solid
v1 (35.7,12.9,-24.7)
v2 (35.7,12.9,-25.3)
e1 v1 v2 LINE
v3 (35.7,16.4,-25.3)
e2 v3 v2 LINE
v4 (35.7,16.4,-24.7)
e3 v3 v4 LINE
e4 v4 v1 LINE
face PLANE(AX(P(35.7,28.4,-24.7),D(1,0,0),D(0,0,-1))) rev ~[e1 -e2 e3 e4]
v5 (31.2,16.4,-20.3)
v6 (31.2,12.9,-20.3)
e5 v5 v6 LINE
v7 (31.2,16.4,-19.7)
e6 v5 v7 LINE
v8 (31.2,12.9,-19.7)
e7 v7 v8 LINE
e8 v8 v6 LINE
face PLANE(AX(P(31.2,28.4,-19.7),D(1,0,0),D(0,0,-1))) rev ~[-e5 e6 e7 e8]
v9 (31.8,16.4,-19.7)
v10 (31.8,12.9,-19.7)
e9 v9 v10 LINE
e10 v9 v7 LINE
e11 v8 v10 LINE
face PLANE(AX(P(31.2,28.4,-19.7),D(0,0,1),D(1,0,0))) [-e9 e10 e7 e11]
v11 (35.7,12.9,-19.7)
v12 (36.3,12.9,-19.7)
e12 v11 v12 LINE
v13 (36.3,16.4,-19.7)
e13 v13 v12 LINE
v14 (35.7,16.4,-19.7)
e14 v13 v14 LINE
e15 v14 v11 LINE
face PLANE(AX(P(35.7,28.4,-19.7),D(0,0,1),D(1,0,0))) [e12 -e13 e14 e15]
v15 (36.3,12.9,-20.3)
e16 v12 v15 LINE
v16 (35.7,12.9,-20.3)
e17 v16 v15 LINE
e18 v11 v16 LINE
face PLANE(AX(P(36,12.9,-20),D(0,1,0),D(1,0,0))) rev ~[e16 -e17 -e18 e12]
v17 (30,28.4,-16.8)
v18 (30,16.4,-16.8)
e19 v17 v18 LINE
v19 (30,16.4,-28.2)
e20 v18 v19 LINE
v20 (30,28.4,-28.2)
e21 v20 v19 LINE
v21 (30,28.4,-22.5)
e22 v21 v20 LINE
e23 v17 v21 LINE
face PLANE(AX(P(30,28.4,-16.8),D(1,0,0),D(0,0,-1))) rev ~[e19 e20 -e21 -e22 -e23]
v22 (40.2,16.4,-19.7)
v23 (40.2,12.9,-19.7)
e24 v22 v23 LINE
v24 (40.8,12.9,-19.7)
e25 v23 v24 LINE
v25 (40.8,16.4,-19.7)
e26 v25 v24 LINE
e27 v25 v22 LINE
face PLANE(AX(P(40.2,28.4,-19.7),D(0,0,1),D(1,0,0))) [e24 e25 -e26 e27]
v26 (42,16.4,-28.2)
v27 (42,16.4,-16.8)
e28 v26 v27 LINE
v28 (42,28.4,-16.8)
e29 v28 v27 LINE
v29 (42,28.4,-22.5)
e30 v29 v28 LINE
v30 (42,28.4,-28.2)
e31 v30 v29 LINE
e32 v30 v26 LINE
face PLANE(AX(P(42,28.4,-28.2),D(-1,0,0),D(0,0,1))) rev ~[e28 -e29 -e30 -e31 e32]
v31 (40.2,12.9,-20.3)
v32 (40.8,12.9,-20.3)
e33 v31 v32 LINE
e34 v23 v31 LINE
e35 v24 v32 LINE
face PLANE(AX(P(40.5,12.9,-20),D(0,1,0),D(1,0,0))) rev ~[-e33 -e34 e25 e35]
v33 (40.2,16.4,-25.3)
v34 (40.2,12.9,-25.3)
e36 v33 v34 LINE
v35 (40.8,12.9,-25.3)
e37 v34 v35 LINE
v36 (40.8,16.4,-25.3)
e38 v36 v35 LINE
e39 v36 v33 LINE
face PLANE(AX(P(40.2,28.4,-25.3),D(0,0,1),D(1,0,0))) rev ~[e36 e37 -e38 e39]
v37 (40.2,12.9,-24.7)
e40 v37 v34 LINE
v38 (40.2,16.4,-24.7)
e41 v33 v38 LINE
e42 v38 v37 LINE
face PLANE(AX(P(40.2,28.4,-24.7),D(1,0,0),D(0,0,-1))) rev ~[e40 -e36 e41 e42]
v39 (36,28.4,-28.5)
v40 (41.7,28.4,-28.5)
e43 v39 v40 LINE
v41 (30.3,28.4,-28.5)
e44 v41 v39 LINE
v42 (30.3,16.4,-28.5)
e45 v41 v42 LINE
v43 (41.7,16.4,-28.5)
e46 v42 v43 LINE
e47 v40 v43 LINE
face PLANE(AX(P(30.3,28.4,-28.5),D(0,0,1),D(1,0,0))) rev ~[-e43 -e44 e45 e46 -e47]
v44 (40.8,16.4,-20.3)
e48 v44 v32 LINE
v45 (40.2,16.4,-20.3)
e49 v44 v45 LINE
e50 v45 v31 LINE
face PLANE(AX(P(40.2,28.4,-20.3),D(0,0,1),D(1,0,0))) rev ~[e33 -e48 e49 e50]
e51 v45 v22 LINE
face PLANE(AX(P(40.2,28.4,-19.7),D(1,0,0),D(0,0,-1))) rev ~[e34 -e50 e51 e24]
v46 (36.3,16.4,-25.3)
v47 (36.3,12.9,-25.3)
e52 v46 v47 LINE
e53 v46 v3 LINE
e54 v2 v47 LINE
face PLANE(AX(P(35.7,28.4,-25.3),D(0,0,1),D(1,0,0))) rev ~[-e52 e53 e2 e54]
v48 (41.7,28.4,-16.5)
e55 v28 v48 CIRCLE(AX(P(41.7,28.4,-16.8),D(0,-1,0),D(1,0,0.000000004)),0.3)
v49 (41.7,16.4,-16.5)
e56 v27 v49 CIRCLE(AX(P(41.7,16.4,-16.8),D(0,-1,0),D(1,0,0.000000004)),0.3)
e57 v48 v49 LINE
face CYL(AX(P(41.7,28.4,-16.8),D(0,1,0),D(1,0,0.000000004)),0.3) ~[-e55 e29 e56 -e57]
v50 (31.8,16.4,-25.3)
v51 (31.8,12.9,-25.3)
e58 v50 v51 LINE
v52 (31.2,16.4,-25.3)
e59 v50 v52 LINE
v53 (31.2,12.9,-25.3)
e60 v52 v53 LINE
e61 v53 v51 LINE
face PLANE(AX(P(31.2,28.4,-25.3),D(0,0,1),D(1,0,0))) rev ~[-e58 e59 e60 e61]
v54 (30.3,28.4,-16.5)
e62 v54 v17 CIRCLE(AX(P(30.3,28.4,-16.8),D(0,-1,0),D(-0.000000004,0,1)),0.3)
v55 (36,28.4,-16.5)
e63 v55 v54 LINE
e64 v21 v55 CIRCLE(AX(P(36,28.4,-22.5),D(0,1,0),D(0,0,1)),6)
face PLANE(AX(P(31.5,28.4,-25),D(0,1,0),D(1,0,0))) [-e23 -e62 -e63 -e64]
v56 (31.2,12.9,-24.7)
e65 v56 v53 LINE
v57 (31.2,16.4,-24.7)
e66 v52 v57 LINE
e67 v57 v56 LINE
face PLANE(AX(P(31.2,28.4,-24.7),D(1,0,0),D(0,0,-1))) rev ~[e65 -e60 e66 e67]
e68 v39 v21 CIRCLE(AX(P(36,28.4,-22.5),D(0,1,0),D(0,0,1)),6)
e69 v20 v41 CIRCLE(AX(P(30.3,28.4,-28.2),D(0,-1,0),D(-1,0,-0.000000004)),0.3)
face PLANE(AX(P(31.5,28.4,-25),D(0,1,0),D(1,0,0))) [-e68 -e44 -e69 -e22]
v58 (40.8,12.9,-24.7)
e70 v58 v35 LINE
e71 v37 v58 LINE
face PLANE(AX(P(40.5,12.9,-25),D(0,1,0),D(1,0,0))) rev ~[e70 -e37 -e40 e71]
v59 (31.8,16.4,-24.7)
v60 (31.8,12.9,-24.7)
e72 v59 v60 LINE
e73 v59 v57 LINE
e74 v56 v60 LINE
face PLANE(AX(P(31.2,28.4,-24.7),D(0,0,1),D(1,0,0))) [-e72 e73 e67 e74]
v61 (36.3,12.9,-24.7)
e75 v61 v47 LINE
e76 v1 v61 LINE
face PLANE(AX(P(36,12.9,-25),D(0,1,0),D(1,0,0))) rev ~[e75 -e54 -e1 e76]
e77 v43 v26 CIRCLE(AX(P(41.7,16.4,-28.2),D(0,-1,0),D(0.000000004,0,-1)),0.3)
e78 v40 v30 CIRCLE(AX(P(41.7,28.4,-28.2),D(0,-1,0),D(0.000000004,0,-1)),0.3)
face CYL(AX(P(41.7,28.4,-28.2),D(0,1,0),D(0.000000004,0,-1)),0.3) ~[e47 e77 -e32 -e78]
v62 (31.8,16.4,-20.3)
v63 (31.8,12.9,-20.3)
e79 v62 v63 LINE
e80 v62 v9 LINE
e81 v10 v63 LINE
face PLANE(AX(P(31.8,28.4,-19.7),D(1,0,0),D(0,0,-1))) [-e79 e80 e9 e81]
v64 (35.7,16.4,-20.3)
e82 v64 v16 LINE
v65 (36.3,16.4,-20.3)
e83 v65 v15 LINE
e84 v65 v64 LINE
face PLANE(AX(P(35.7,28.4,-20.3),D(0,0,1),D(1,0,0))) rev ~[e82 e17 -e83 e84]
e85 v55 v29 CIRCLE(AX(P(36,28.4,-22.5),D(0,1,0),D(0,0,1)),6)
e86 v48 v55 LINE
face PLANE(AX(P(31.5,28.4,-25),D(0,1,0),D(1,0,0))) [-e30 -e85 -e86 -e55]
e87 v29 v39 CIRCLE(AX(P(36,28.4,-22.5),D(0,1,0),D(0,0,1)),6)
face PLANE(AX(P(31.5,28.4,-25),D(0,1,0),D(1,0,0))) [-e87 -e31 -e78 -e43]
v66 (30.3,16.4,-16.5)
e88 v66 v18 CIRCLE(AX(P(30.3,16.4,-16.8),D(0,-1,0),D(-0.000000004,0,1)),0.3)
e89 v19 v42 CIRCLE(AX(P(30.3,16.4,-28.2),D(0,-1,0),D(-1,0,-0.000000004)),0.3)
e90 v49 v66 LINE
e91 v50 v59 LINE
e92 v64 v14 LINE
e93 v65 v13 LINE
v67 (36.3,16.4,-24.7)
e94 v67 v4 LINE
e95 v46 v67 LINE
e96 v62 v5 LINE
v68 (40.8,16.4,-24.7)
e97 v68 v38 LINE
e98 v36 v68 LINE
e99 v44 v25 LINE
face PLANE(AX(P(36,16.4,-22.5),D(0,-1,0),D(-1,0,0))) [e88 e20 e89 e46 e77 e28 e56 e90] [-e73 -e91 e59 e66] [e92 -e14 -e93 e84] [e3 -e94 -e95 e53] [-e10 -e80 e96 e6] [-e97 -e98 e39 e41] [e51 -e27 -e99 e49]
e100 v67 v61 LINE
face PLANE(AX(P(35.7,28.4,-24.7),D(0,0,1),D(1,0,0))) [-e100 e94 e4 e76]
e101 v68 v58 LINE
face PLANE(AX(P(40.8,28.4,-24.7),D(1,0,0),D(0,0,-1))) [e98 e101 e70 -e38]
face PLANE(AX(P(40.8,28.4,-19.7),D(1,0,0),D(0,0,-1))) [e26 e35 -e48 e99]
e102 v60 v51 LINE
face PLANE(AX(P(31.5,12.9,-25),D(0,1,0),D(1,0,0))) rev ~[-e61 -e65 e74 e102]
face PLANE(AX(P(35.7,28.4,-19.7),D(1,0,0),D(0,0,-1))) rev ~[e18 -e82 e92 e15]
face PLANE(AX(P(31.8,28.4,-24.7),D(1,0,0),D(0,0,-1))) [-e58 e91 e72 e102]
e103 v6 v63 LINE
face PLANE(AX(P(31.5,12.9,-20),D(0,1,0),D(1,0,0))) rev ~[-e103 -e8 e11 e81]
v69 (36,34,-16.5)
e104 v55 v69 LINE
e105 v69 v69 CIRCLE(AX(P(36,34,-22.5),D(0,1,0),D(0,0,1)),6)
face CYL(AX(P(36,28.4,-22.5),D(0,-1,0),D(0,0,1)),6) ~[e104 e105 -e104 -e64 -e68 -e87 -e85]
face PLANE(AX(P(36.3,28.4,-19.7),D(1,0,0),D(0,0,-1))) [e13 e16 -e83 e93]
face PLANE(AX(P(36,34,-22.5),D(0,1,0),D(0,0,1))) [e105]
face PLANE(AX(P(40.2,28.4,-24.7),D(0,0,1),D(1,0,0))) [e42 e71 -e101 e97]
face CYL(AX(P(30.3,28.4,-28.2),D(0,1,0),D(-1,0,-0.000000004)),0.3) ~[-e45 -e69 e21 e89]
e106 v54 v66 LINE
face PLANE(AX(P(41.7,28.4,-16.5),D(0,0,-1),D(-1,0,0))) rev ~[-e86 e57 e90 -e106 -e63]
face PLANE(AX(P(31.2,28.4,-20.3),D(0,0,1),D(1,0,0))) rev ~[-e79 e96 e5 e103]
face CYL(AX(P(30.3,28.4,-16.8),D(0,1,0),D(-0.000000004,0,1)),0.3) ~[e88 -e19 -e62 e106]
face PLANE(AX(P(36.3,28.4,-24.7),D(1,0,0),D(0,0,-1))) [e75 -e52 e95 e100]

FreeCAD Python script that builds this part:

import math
import FreeCAD as App
import Part
import Sketcher
Q = App.Units.Quantity

doc = App.newDocument("Part")
params = doc.addObject("Spreadsheet::Sheet", "Params")
for row, (alias, value) in enumerate([
    ("sketch1_radius", "0.3 mm"),
    ("sketch1_width", "11.4 mm"),
    ("pad1_length", "12 mm"),
    ("sketch2_width", "0.6 mm"),
    ("pad2_length", "15.5 mm"),
    ("sketch3_diameter", "12 mm"),
    ("pad3_length", "5.6 mm"),
], start=1):
    params.set(f"A{row}", alias)
    params.set(f"B{row}", "=" + value)
    params.setAlias(f"B{row}", alias)

body = doc.addObject("PartDesign::Body", "Body")

# Sketch on XZ plane
sketch1 = body.newObject("Sketcher::SketchObject", "Sketch")
sketch1.AttachmentSupport = (doc.getObject("XZ_Plane"), [""])
sketch1.MapMode = "FlatFace"
sketch1.AttachmentOffset = App.Placement(App.Vector(0, 0, -28.4), App.Rotation())
sketch1.addGeometry([
    Part.LineSegment(App.Vector(41.7, -28.5, 0), App.Vector(30.3, -28.5, 0)),  # 0
    Part.ArcOfCircle(Part.Circle(App.Vector(30.3, -28.2, 0), App.Vector(0, 0, 1), 0.3), math.radians(-180), math.radians(-90)),  # 1
    Part.LineSegment(App.Vector(30, -28.2, 0), App.Vector(30, -16.8, 0)),  # 2
    Part.ArcOfCircle(Part.Circle(App.Vector(30.3, -16.8, 0), App.Vector(0, 0, 1), 0.3), math.radians(90), math.radians(180)),  # 3
    Part.LineSegment(App.Vector(30.3, -16.5, 0), App.Vector(41.7, -16.5, 0)),  # 4
    Part.ArcOfCircle(Part.Circle(App.Vector(41.7, -16.8, 0), App.Vector(0, 0, 1), 0.3), math.radians(0), math.radians(90)),  # 5
    Part.LineSegment(App.Vector(42, -16.8, 0), App.Vector(42, -28.2, 0)),  # 6
    Part.ArcOfCircle(Part.Circle(App.Vector(41.7, -28.2, 0), App.Vector(0, 0, 1), 0.3), math.radians(-90), math.radians(0)),  # 7
], False)
sketch1.addConstraint([
    Sketcher.Constraint("Tangent", 0, 2, 1, 2),
    Sketcher.Constraint("Tangent", 1, 1, 2, 1),
    Sketcher.Constraint("Tangent", 2, 2, 3, 2),
    Sketcher.Constraint("Tangent", 3, 1, 4, 1),
    Sketcher.Constraint("Tangent", 4, 2, 5, 2),
    Sketcher.Constraint("Tangent", 5, 1, 6, 1),
    Sketcher.Constraint("Tangent", 6, 2, 7, 2),
    Sketcher.Constraint("Tangent", 7, 1, 0, 1),
    Sketcher.Constraint("Horizontal", 0),
    Sketcher.Constraint("Vertical", 2),
    Sketcher.Constraint("Horizontal", 4),
    Sketcher.Constraint("Vertical", 6),
    Sketcher.Constraint("Equal", 1, 3),
    Sketcher.Constraint("Equal", 3, 5),
    Sketcher.Constraint("Equal", 5, 7),
    Sketcher.Constraint("Equal", 4, 2),
    Sketcher.Constraint("Radius", 1, Q("0.3 mm")),
    Sketcher.Constraint("DistanceX", 0, 2, 0, 1, Q("11.4 mm")),
    Sketcher.Constraint("DistanceX", -1, 1, 1, 1, Q("30 mm")),
    Sketcher.Constraint("DistanceY", 1, 3, -1, 1, Q("28.2 mm")),
])
sketch1.setExpression("Constraints[16]", "Params.sketch1_radius")
sketch1.setExpression("Constraints[17]", "Params.sketch1_width")
pad1 = body.newObject("PartDesign::Pad", "Pad")
pad1.Profile = sketch1
pad1.setExpression("Length", "Params.pad1_length")

# Sketch on XZ plane
sketch2 = body.newObject("Sketcher::SketchObject", "Sketch001")
sketch2.AttachmentSupport = (doc.getObject("XZ_Plane"), [""])
sketch2.MapMode = "FlatFace"
sketch2.AttachmentOffset = App.Placement(App.Vector(0, 0, -28.4), App.Rotation())
sketch2.addGeometry([
    Part.LineSegment(App.Vector(31.2, -25.3, 0), App.Vector(31.2, -24.7, 0)),  # 0
    Part.LineSegment(App.Vector(31.2, -24.7, 0), App.Vector(31.8, -24.7, 0)),  # 1
    Part.LineSegment(App.Vector(31.8, -24.7, 0), App.Vector(31.8, -25.3, 0)),  # 2
    Part.LineSegment(App.Vector(31.8, -25.3, 0), App.Vector(31.2, -25.3, 0)),  # 3
    Part.LineSegment(App.Vector(31.2, -20.3, 0), App.Vector(31.2, -19.7, 0)),  # 4
    Part.LineSegment(App.Vector(31.2, -19.7, 0), App.Vector(31.8, -19.7, 0)),  # 5
    Part.LineSegment(App.Vector(31.8, -19.7, 0), App.Vector(31.8, -20.3, 0)),  # 6
    Part.LineSegment(App.Vector(31.8, -20.3, 0), App.Vector(31.2, -20.3, 0)),  # 7
    Part.LineSegment(App.Vector(35.7, -25.3, 0), App.Vector(35.7, -24.7, 0)),  # 8
    Part.LineSegment(App.Vector(35.7, -24.7, 0), App.Vector(36.3, -24.7, 0)),  # 9
    Part.LineSegment(App.Vector(36.3, -24.7, 0), App.Vector(36.3, -25.3, 0)),  # 10
    Part.LineSegment(App.Vector(36.3, -25.3, 0), App.Vector(35.7, -25.3, 0)),  # 11
    Part.LineSegment(App.Vector(35.7, -20.3, 0), App.Vector(35.7, -19.7, 0)),  # 12
    Part.LineSegment(App.Vector(35.7, -19.7, 0), App.Vector(36.3, -19.7, 0)),  # 13
    Part.LineSegment(App.Vector(36.3, -19.7, 0), App.Vector(36.3, -20.3, 0)),  # 14
    Part.LineSegment(App.Vector(36.3, -20.3, 0), App.Vector(35.7, -20.3, 0)),  # 15
    Part.LineSegment(App.Vector(40.2, -25.3, 0), App.Vector(40.2, -24.7, 0)),  # 16
    Part.LineSegment(App.Vector(40.2, -24.7, 0), App.Vector(40.8, -24.7, 0)),  # 17
    Part.LineSegment(App.Vector(40.8, -24.7, 0), App.Vector(40.8, -25.3, 0)),  # 18
    Part.LineSegment(App.Vector(40.8, -25.3, 0), App.Vector(40.2, -25.3, 0)),  # 19
    Part.LineSegment(App.Vector(40.2, -20.3, 0), App.Vector(40.2, -19.7, 0)),  # 20
    Part.LineSegment(App.Vector(40.2, -19.7, 0), App.Vector(40.8, -19.7, 0)),  # 21
    Part.LineSegment(App.Vector(40.8, -19.7, 0), App.Vector(40.8, -20.3, 0)),  # 22
    Part.LineSegment(App.Vector(40.8, -20.3, 0), App.Vector(40.2, -20.3, 0)),  # 23
], False)
sketch2.addConstraint([
    Sketcher.Constraint("Coincident", 0, 2, 1, 1),
    Sketcher.Constraint("Coincident", 1, 2, 2, 1),
    Sketcher.Constraint("Coincident", 2, 2, 3, 1),
    Sketcher.Constraint("Coincident", 3, 2, 0, 1),
    Sketcher.Constraint("Coincident", 4, 2, 5, 1),
    Sketcher.Constraint("Coincident", 5, 2, 6, 1),
    Sketcher.Constraint("Coincident", 6, 2, 7, 1),
    Sketcher.Constraint("Coincident", 7, 2, 4, 1),
    Sketcher.Constraint("Coincident", 8, 2, 9, 1),
    Sketcher.Constraint("Coincident", 9, 2, 10, 1),
    Sketcher.Constraint("Coincident", 10, 2, 11, 1),
    Sketcher.Constraint("Coincident", 11, 2, 8, 1),
    Sketcher.Constraint("Coincident", 12, 2, 13, 1),
    Sketcher.Constraint("Coincident", 13, 2, 14, 1),
    Sketcher.Constraint("Coincident", 14, 2, 15, 1),
    Sketcher.Constraint("Coincident", 15, 2, 12, 1),
    Sketcher.Constraint("Coincident", 16, 2, 17, 1),
    Sketcher.Constraint("Coincident", 17, 2, 18, 1),
    Sketcher.Constraint("Coincident", 18, 2, 19, 1),
    Sketcher.Constraint("Coincident", 19, 2, 16, 1),
    Sketcher.Constraint("Coincident", 20, 2, 21, 1),
    Sketcher.Constraint("Coincident", 21, 2, 22, 1),
    Sketcher.Constraint("Coincident", 22, 2, 23, 1),
    Sketcher.Constraint("Coincident", 23, 2, 20, 1),
    Sketcher.Constraint("Vertical", 0),
    Sketcher.Constraint("Horizontal", 1),
    Sketcher.Constraint("Vertical", 2),
    Sketcher.Constraint("Horizontal", 3),
    Sketcher.Constraint("Vertical", 4),
    Sketcher.Constraint("Horizontal", 5),
    Sketcher.Constraint("Vertical", 6),
    Sketcher.Constraint("Horizontal", 7),
    Sketcher.Constraint("Vertical", 8),
    Sketcher.Constraint("Horizontal", 9),
    Sketcher.Constraint("Vertical", 10),
    Sketcher.Constraint("Horizontal", 11),
    Sketcher.Constraint("Vertical", 12),
    Sketcher.Constraint("Horizontal", 13),
    Sketcher.Constraint("Vertical", 14),
    Sketcher.Constraint("Horizontal", 15),
    Sketcher.Constraint("Vertical", 16),
    Sketcher.Constraint("Horizontal", 17),
    Sketcher.Constraint("Vertical", 18),
    Sketcher.Constraint("Horizontal", 19),
    Sketcher.Constraint("Vertical", 20),
    Sketcher.Constraint("Horizontal", 21),
    Sketcher.Constraint("Vertical", 22),
    Sketcher.Constraint("Horizontal", 23),
    Sketcher.Constraint("Horizontal", 1, 2, 8, 2),
    Sketcher.Constraint("Horizontal", 3, 2, 10, 2),
    Sketcher.Constraint("Horizontal", 5, 2, 12, 2),
    Sketcher.Constraint("Horizontal", 7, 2, 14, 2),
    Sketcher.Constraint("Horizontal", 9, 2, 16, 2),
    Sketcher.Constraint("Horizontal", 11, 2, 18, 2),
    Sketcher.Constraint("Horizontal", 13, 2, 20, 2),
    Sketcher.Constraint("Horizontal", 15, 2, 22, 2),
    Sketcher.Constraint("Vertical", 3, 2, 4, 2),
    Sketcher.Constraint("Vertical", 2, 2, 5, 2),
    Sketcher.Constraint("Vertical", 11, 2, 12, 2),
    Sketcher.Constraint("Vertical", 10, 2, 13, 2),
    Sketcher.Constraint("Vertical", 19, 2, 20, 2),
    Sketcher.Constraint("Vertical", 18, 2, 21, 2),
    Sketcher.Constraint("Equal", 7, 9),
    Sketcher.Constraint("Equal", 15, 17),
    Sketcher.Constraint("Equal", 23, 0),
    Sketcher.Constraint("Equal", 2, 4),
    Sketcher.Constraint("DistanceX", 1, 1, 1, 2, Q("0.6 mm")),
    Sketcher.Constraint("DistanceY", 0, 2, 4, 2, Q("5 mm")),
    Sketcher.Constraint("DistanceX", -1, 1, 0, 2, Q("31.2 mm")),
    Sketcher.Constraint("DistanceY", 0, 2, -1, 1, Q("24.7 mm")),
    Sketcher.Constraint("DistanceX", -1, 1, 8, 2, Q("35.7 mm")),
    Sketcher.Constraint("DistanceX", -1, 1, 16, 2, Q("40.2 mm")),
])
sketch2.setExpression("Constraints[66]", "Params.sketch2_width")
pad2 = body.newObject("PartDesign::Pad", "Pad001")
pad2.Profile = sketch2
pad2.setExpression("Length", "Params.pad2_length")

# Sketch on XZ plane
sketch3 = body.newObject("Sketcher::SketchObject", "Sketch002")
sketch3.AttachmentSupport = (doc.getObject("XZ_Plane"), [""])
sketch3.MapMode = "FlatFace"
sketch3.AttachmentOffset = App.Placement(App.Vector(0, 0, -28.4), App.Rotation())
sketch3.addGeometry(Part.Circle(App.Vector(36, -22, 0), App.Vector(0, 0, 1), 6), False)
sketch3.addConstraint([
    Sketcher.Constraint("Diameter", 0, Q("12 mm")),
    Sketcher.Constraint("DistanceX", -1, 1, 0, 3, Q("36 mm")),
    Sketcher.Constraint("DistanceY", 0, 3, -1, 1, Q("22.5 mm")),
])
sketch3.setExpression("Constraints[0]", "Params.sketch3_diameter")
pad3 = body.newObject("PartDesign::Pad", "Pad002")
pad3.Profile = sketch3
pad3.setExpression("Length", "Params.pad3_length")
pad3.Reversed = True

doc.recompute()
